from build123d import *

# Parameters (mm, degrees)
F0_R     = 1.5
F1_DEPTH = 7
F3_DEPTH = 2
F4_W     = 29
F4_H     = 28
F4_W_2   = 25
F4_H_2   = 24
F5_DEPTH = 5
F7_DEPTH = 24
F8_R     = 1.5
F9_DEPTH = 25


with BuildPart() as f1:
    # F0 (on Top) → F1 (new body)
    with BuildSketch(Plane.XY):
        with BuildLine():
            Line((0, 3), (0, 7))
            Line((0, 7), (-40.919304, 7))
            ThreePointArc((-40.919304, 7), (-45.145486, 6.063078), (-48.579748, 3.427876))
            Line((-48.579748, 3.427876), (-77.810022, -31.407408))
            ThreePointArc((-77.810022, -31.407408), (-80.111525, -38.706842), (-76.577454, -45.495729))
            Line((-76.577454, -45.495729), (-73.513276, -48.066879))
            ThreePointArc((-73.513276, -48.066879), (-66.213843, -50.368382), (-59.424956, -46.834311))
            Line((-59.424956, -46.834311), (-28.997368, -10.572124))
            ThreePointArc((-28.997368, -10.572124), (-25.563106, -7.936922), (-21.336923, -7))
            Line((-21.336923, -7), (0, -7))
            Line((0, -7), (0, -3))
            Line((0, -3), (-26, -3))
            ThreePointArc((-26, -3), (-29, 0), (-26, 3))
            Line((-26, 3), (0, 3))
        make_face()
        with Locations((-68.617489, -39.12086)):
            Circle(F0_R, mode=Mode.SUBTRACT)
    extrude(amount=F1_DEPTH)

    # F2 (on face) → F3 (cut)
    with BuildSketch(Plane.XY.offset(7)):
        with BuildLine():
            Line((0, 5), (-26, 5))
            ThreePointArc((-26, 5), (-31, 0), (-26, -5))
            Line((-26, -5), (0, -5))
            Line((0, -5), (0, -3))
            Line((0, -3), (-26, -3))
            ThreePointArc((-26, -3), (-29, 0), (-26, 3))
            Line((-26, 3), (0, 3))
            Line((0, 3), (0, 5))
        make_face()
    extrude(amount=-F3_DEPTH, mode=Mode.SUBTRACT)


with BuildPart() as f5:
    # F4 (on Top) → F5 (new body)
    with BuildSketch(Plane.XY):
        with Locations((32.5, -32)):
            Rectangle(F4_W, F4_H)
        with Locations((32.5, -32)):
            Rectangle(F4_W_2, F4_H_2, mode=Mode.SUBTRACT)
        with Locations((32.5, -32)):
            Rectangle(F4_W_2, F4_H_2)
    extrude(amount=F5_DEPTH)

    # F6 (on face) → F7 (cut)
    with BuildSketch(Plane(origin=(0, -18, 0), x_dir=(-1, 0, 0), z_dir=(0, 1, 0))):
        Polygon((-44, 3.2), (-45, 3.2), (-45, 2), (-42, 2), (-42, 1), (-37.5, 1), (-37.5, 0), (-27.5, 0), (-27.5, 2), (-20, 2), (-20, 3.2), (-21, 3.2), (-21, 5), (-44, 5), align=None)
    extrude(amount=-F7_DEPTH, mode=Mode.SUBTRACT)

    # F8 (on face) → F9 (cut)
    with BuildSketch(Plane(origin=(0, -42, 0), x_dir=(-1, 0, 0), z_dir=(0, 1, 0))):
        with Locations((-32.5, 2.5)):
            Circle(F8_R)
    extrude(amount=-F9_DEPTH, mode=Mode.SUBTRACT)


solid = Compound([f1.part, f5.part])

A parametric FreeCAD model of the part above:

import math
import FreeCAD as App
import Part
import Sketcher

V = App.Vector
Q = App.Units.Quantity


def add_polygon(sketch, points):
    """Adds a closed chain of lines whose ends are joined by coincident constraints."""
    first, n = sketch.GeometryCount, len(points)
    for a, b in zip(points, points[1:] + points[:1]):
        sketch.addGeometry(Part.LineSegment(App.Vector(*a, 0), App.Vector(*b, 0)), False)
    for i in range(n):
        sketch.addConstraint(Sketcher.Constraint("Coincident", first + i, 2, first + (i + 1) % n, 1))

doc = App.newDocument("Part")
params = doc.addObject("Spreadsheet::Sheet", "Params")
for row, (alias, value) in enumerate([
    ("sketch1_diameter", "3 mm"),
    ("sketch1_radius", "9.999999 mm"),
    ("sketch1_radius2", "3 mm"),
    ("sketch1_width", "26 mm"),
    ("sketch1_length", "4 mm"),
    ("pad1_length", "7 mm"),
    ("sketch2_radius", "5 mm"),
    ("sketch2_radius2", "3 mm"),
    ("sketch2_width", "26 mm"),
    ("pocket1_length", "2 mm"),
    ("sketch3_width", "29 mm"),
    ("sketch3_height", "28 mm"),
    ("pad2_length", "5 mm"),
    ("sketch4_width", "1 mm"),
    ("sketch4_width2", "3 mm"),
    ("sketch4_width3", "10 mm"),
    ("sketch4_width4", "23 mm"),
    ("sketch4_width5", "4.5 mm"),
    ("pocket2_length", "24 mm"),
    ("sketch5_diameter", "3 mm"),
    ("pocket3_length", "25 mm"),
], start=1):
    params.set(f"A{row}", alias)
    params.set(f"B{row}", "=" + value)
    params.setAlias(f"B{row}", alias)

body = doc.addObject("PartDesign::Body", "Body")

sketch1 = body.newObject("Sketcher::SketchObject", "Sketch")
sketch1.AttachmentSupport = (doc.getObject("XY_Plane"), [""])
sketch1.MapMode = "FlatFace"
sketch1.addGeometry(Part.LineSegment(V(0, 3, 0), V(0, 7, 0)), False)
sketch1.addGeometry(Part.LineSegment(V(0, 7, 0), V(-40.9, 7, 0)), False)
sketch1.addGeometry(Part.ArcOfCircle(Part.Circle(V(-40.9, -3, 0), V(0, 0, 1), 10), math.radians(90), math.radians(140)), False)
sketch1.addGeometry(Part.LineSegment(V(-48.6, 3.4, 0), V(-77.8, -31.4, 0)), False)
sketch1.addGeometry(Part.ArcOfCircle(Part.Circle(V(-70.1, -37.8, 0), V(0, 0, 1), 10), math.radians(140), math.radians(230)), False)
sketch1.addGeometry(Part.LineSegment(V(-76.6, -45.5, 0), V(-73.5, -48.1, 0)), False)
sketch1.addGeometry(Part.ArcOfCircle(Part.Circle(V(-67.1, -40.4, 0), V(0, 0, 1), 10), math.radians(-130), math.radians(-40)), False)
sketch1.addGeometry(Part.LineSegment(V(-59.4, -46.8, 0), V(-29, -10.6, 0)), False)
sketch1.addGeometry(Part.ArcOfCircle(Part.Circle(V(-21.3, -17, 0), V(0, 0, 1), 10), math.radians(90), math.radians(140)), False)
sketch1.addGeometry(Part.LineSegment(V(-21.3, -7, 0), V(0, -7, 0)), False)
sketch1.addGeometry(Part.LineSegment(V(0, -7, 0), V(0, -3, 0)), False)
sketch1.addGeometry(Part.LineSegment(V(0, -3, 0), V(-26, -3, 0)), False)
sketch1.addGeometry(Part.ArcOfCircle(Part.Circle(V(-26, 0, 0), V(0, 0, 1), 3), math.radians(90), math.radians(270)), False)
sketch1.addGeometry(Part.LineSegment(V(-26, 3, 0), V(0, 3, 0)), False)
sketch1.addGeometry(Part.Circle(V(-68.6, -39.1, 0), V(0, 0, 1), 1.5), False)
sketch1.addConstraint(Sketcher.Constraint("Coincident", 0, 2, 1, 1))
sketch1.addConstraint(Sketcher.Constraint("Tangent", 1, 2, 2, 1))
sketch1.addConstraint(Sketcher.Constraint("Tangent", 2, 2, 3, 1))
sketch1.addConstraint(Sketcher.Constraint("Tangent", 3, 2, 4, 1))
sketch1.addConstraint(Sketcher.Constraint("Tangent", 4, 2, 5, 1))
sketch1.addConstraint(Sketcher.Constraint("Tangent", 5, 2, 6, 1))
sketch1.addConstraint(Sketcher.Constraint("Tangent", 6, 2, 7, 1))
sketch1.addConstraint(Sketcher.Constraint("Tangent", 7, 2, 8, 2))
sketch1.addConstraint(Sketcher.Constraint("Tangent", 8, 1, 9, 1))
sketch1.addConstraint(Sketcher.Constraint("Coincident", 9, 2, 10, 1))
sketch1.addConstraint(Sketcher.Constraint("Coincident", 10, 2, 11, 1))
sketch1.addConstraint(Sketcher.Constraint("Tangent", 11, 2, 12, 2))
sketch1.addConstraint(Sketcher.Constraint("Tangent", 12, 1, 13, 1))
sketch1.addConstraint(Sketcher.Constraint("Coincident", 13, 2, 0, 1))
sketch1.addConstraint(Sketcher.Constraint("Vertical", 0))
sketch1.addConstraint(Sketcher.Constraint("Horizontal", 1))
sketch1.addConstraint(Sketcher.Constraint("Horizontal", 9))
sketch1.addConstraint(Sketcher.Constraint("Vertical", 10))
sketch1.addConstraint(Sketcher.Constraint("Horizontal", 11))
sketch1.addConstraint(Sketcher.Constraint("Horizontal", 13))
sketch1.addConstraint(Sketcher.Constraint("Equal", 2, 4))
sketch1.addConstraint(Sketcher.Constraint("Equal", 4, 6))
sketch1.addConstraint(Sketcher.Constraint("Equal", 6, 8))
sketch1.addConstraint(Sketcher.Constraint("Symmetric", 0, 2, 9, 2, -1, 1))
sketch1.addConstraint(Sketcher.Constraint("Symmetric", 10, 2, 13, 2, -1))
sketch1.addConstraint(Sketcher.Constraint("Perpendicular", 3, 5))
sketch1.addConstraint(Sketcher.Constraint("Perpendicular", 5, 7))
sketch1.addConstraint(Sketcher.Constraint("Horizontal", 2, 3, 10, 2))
sketch1.addConstraint(Sketcher.Constraint("Diameter", 14, Q("3 mm")))
sketch1.addConstraint(Sketcher.Constraint("Radius", 2, Q("9.999999 mm")))
sketch1.addConstraint(Sketcher.Constraint("Radius", 12, Q("3 mm")))
sketch1.addConstraint(Sketcher.Constraint("DistanceX", 11, 2, 11, 1, Q("26 mm")))
sketch1.addConstraint(Sketcher.Constraint("Angle", 3, Q("-130 deg")))
sketch1.addConstraint(Sketcher.Constraint("Distance", 5, Q("4 mm")))
sketch1.addConstraint(Sketcher.Constraint("DistanceX", 6, 3, -1, 1, Q("67.0854 mm")))
sketch1.addConstraint(Sketcher.Constraint("DistanceX", 1, 2, 1, 1, Q("40.919304 mm")))
sketch1.addConstraint(Sketcher.Constraint("DistanceX", 14, 3, -1, 1, Q("68.617489 mm")))
sketch1.addConstraint(Sketcher.Constraint("DistanceY", 14, 3, -1, 1, Q("39.12086 mm")))
sketch1.setExpression("Constraints[28]", "Params.sketch1_diameter")
sketch1.setExpression("Constraints[29]", "Params.sketch1_radius")
sketch1.setExpression("Constraints[30]", "Params.sketch1_radius2")
sketch1.setExpression("Constraints[31]", "Params.sketch1_width")
sketch1.setExpression("Constraints[33]", "Params.sketch1_length")
pad1 = body.newObject("PartDesign::Pad", "Pad")
pad1.Profile = sketch1
pad1.setExpression("Length", "Params.pad1_length")

sketch2 = body.newObject("Sketcher::SketchObject", "Sketch001")
sketch2.AttachmentSupport = (doc.getObject("XY_Plane"), [""])
sketch2.MapMode = "FlatFace"
sketch2.AttachmentOffset = App.Placement(V(0, 0, 7), App.Rotation())
sketch2.addGeometry(Part.LineSegment(V(0, 5, 0), V(-26, 5, 0)), False)
sketch2.addGeometry(Part.ArcOfCircle(Part.Circle(V(-26, 0, 0), V(0, 0, 1), 5), math.radians(90), math.radians(270)), False)
sketch2.addGeometry(Part.LineSegment(V(-26, -5, 0), V(0, -5, 0)), False)
sketch2.addGeometry(Part.LineSegment(V(0, -5, 0), V(0, -3, 0)), False)
sketch2.addGeometry(Part.LineSegment(V(0, -3, 0), V(-26, -3, 0)), False)
sketch2.addGeometry(Part.ArcOfCircle(Part.Circle(V(-26, 0, 0), V(0, 0, 1), 3), math.radians(90), math.radians(270)), False)
sketch2.addGeometry(Part.LineSegment(V(-26, 3, 0), V(0, 3, 0)), False)
sketch2.addGeometry(Part.LineSegment(V(0, 3, 0), V(0, 5, 0)), False)
sketch2.addConstraint(Sketcher.Constraint("Tangent", 0, 2, 1, 1))
sketch2.addConstraint(Sketcher.Constraint("Tangent", 1, 2, 2, 1))
sketch2.addConstraint(Sketcher.Constraint("Coincident", 2, 2, 3, 1))
sketch2.addConstraint(Sketcher.Constraint("Coincident", 3, 2, 4, 1))
sketch2.addConstraint(Sketcher.Constraint("Tangent", 4, 2, 5, 2))
sketch2.addConstraint(Sketcher.Constraint("Tangent", 5, 1, 6, 1))
sketch2.addConstraint(Sketcher.Constraint("Coincident", 6, 2, 7, 1))
sketch2.addConstraint(Sketcher.Constraint("Coincident", 7, 2, 0, 1))
sketch2.addConstraint(Sketcher.Constraint("Horizontal", 0))
sketch2.addConstraint(Sketcher.Constraint("Horizontal", 2))
sketch2.addConstraint(Sketcher.Constraint("Vertical", 3))
sketch2.addConstraint(Sketcher.Constraint("Horizontal", 4))
sketch2.addConstraint(Sketcher.Constraint("Horizontal", 6))
sketch2.addConstraint(Sketcher.Constraint("Vertical", 7))
sketch2.addConstraint(Sketcher.Constraint("Coincident", 5, 3, 1, 3))
sketch2.addConstraint(Sketcher.Constraint("Symmetric", 3, 2, 6, 2, -1, 1))
sketch2.addConstraint(Sketcher.Constraint("PointOnObject", 2, 2, -2))
sketch2.addConstraint(Sketcher.Constraint("Radius", 1, Q("5 mm")))
sketch2.addConstraint(Sketcher.Constraint("Radius", 5, Q("3 mm")))
sketch2.addConstraint(Sketcher.Constraint("DistanceX", 0, 2, 0, 1, Q("26 mm")))
sketch2.setExpression("Constraints[17]", "Params.sketch2_radius")
sketch2.setExpression("Constraints[18]", "Params.sketch2_radius2")
sketch2.setExpression("Constraints[19]", "Params.sketch2_width")
pocket1 = body.newObject("PartDesign::Pocket", "Pocket")
pocket1.Profile = sketch2
pocket1.setExpression("Length", "Params.pocket1_length")
body2 = doc.addObject("PartDesign::Body", "Body001")

sketch3 = body2.newObject("Sketcher::SketchObject", "Sketch002")
sketch3.AttachmentSupport = (doc.getObject("XY_Plane001"), [""])
sketch3.MapMode = "FlatFace"
add_polygon(sketch3, [(18, -18), (18, -46), (47, -46), (47, -18)])
sketch3.addConstraint(Sketcher.Constraint("Vertical", 0))
sketch3.addConstraint(Sketcher.Constraint("Horizontal", 1))
sketch3.addConstraint(Sketcher.Constraint("Vertical", 2))
sketch3.addConstraint(Sketcher.Constraint("Horizontal", 3))
sketch3.addConstraint(Sketcher.Constraint("DistanceX", 1, 1, 1, 2, Q("29 mm")))
sketch3.addConstraint(Sketcher.Constraint("DistanceY", 0, 2, 0, 1, Q("28 mm")))
sketch3.addConstraint(Sketcher.Constraint("DistanceX", -1, 1, 0, 2, Q("18 mm")))
sketch3.addConstraint(Sketcher.Constraint("DistanceY", 0, 2, -1, 1, Q("46 mm")))
sketch3.setExpression("Constraints[8]", "Params.sketch3_width")
sketch3.setExpression("Constraints[9]", "Params.sketch3_height")
pad2 = body2.newObject("PartDesign::Pad", "Pad001")
pad2.Profile = sketch3
pad2.setExpression("Length", "Params.pad2_length")

sketch4 = body2.newObject("Sketcher::SketchObject", "Sketch003")
sketch4.AttachmentSupport = (doc.getObject("XZ_Plane001"), [""])
sketch4.MapMode = "FlatFace"
sketch4.AttachmentOffset = App.Placement(V(0, 0, 18), App.Rotation())
add_polygon(sketch4, [(44, 3.2), (45, 3.2), (45, 2), (42, 2), (42, 1), (37.5, 1), (37.5, 0), (27.5, 0), (27.5, 2), (20, 2), (20, 3.2), (21, 3.2), (21, 5), (44, 5)])
sketch4.addConstraint(Sketcher.Constraint("Horizontal", 0))
sketch4.addConstraint(Sketcher.Constraint("Vertical", 1))
sketch4.addConstraint(Sketcher.Constraint("Horizontal", 2))
sketch4.addConstraint(Sketcher.Constraint("Vertical", 3))
sketch4.addConstraint(Sketcher.Constraint("Horizontal", 4))
sketch4.addConstraint(Sketcher.Constraint("Vertical", 5))
sketch4.addConstraint(Sketcher.Constraint("Horizontal", 6))
sketch4.addConstraint(Sketcher.Constraint("Vertical", 7))
sketch4.addConstraint(Sketcher.Constraint("Horizontal", 8))
sketch4.addConstraint(Sketcher.Constraint("Vertical", 9))
sketch4.addConstraint(Sketcher.Constraint("Horizontal", 10))
sketch4.addConstraint(Sketcher.Constraint("Vertical", 11))
sketch4.addConstraint(Sketcher.Constraint("Horizontal", 12))
sketch4.addConstraint(Sketcher.Constraint("Vertical", 13))
sketch4.addConstraint(Sketcher.Constraint("PointOnObject", 5, 2, -1))
sketch4.addConstraint(Sketcher.Constraint("Horizontal", 2, 2, 7, 2))
sketch4.addConstraint(Sketcher.Constraint("Horizontal", 0, 2, 9, 2))
sketch4.addConstraint(Sketcher.Constraint("Equal", 0, 10))
sketch4.addConstraint(Sketcher.Constraint("Equal", 10, 3))
sketch4.addConstraint(Sketcher.Constraint("Equal", 3, 5))
sketch4.addConstraint(Sketcher.Constraint("DistanceX", 0, 1, 0, 2, Q("1 mm")))
sketch4.addConstraint(Sketcher.Constraint("DistanceX", 2, 2, 2, 1, Q("3 mm")))
sketch4.addConstraint(Sketcher.Constraint("DistanceX", 6, 2, 6, 1, Q("10 mm")))
sketch4.addConstraint(Sketcher.Constraint("DistanceX", 12, 1, 12, 2, Q("23 mm")))
sketch4.addConstraint(Sketcher.Constraint("DistanceX", 4, 2, 4, 1, Q("4.5 mm")))
sketch4.addConstraint(Sketcher.Constraint("DistanceY", 1, 2, 1, 1, Q("1.2 mm")))
sketch4.addConstraint(Sketcher.Constraint("DistanceY", 11, 1, 11, 2, Q("1.8 mm")))
sketch4.addConstraint(Sketcher.Constraint("DistanceX", -1, 1, 0, 2, Q("45 mm")))
sketch4.setExpression("Constraints[34]", "Params.sketch4_width")
sketch4.setExpression("Constraints[35]", "Params.sketch4_width2")
sketch4.setExpression("Constraints[36]", "Params.sketch4_width3")
sketch4.setExpression("Constraints[37]", "Params.sketch4_width4")
sketch4.setExpression("Constraints[38]", "Params.sketch4_width5")
pocket2 = body2.newObject("PartDesign::Pocket", "Pocket001")
pocket2.Profile = sketch4
pocket2.setExpression("Length", "Params.pocket2_length")
pocket2.Reversed = True

sketch5 = body2.newObject("Sketcher::SketchObject", "Sketch004")
sketch5.AttachmentSupport = (doc.getObject("XZ_Plane001"), [""])
sketch5.MapMode = "FlatFace"
sketch5.AttachmentOffset = App.Placement(V(0, 0, 42), App.Rotation())
sketch5.addGeometry(Part.Circle(V(32.5, 2.5, 0), V(0, 0, 1), 1.5), False)
sketch5.addConstraint(Sketcher.Constraint("Diameter", 0, Q("3 mm")))
sketch5.addConstraint(Sketcher.Constraint("DistanceX", -1, 1, 0, 3, Q("32.5 mm")))
sketch5.addConstraint(Sketcher.Constraint("DistanceY", -1, 1, 0, 3, Q("2.5 mm")))
sketch5.setExpression("Constraints[0]", "Params.sketch5_diameter")
pocket3 = body2.newObject("PartDesign::Pocket", "Pocket002")
pocket3.Profile = sketch5
pocket3.setExpression("Length", "Params.pocket3_length")
pocket3.Reversed = True

doc.recompute()
